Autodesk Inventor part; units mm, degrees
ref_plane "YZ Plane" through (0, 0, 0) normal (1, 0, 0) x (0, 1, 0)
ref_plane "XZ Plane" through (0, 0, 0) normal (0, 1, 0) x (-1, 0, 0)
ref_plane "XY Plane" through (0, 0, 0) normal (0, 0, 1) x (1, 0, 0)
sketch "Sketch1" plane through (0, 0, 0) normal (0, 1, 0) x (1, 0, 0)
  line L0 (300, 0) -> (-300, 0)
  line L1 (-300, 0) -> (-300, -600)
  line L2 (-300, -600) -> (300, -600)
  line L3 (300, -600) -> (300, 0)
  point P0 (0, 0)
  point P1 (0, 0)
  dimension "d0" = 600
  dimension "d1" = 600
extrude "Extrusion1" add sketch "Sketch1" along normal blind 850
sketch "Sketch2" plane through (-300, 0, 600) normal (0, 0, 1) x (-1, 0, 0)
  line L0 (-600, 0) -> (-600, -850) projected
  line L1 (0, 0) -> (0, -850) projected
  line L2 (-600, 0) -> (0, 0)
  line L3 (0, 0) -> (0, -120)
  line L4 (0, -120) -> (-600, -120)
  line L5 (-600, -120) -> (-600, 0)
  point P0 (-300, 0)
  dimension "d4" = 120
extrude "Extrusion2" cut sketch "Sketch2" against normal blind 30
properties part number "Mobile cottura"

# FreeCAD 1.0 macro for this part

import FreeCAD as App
import Part
import Sketcher
from FreeCAD import Vector


def add_polygon(sketch, points):
    """Adds a closed chain of lines whose ends are joined by coincident constraints."""
    first, n = sketch.GeometryCount, len(points)
    for a, b in zip(points, points[1:] + points[:1]):
        sketch.addGeometry(Part.LineSegment(App.Vector(*a, 0), App.Vector(*b, 0)), False)
    for i in range(n):
        sketch.addConstraint(Sketcher.Constraint("Coincident", first + i, 2, first + (i + 1) % n, 1))

doc = App.newDocument("Part")
body = doc.addObject("PartDesign::Body", "Body")

sketch1 = body.newObject("Sketcher::SketchObject", "Sketch")
sketch1.AttachmentSupport = (doc.getObject("XZ_Plane"), [""])
sketch1.MapMode = "FlatFace"
add_polygon(sketch1, [(300, 600), (300, 0), (-300, 0), (-300, 600)])
sketch1.addConstraint(Sketcher.Constraint("Vertical", 0))
sketch1.addConstraint(Sketcher.Constraint("Horizontal", 1))
sketch1.addConstraint(Sketcher.Constraint("Vertical", 2))
sketch1.addConstraint(Sketcher.Constraint("Horizontal", 3))
sketch1.addConstraint(Sketcher.Constraint("Symmetric", 0, 2, 1, 2, -1, 1))
sketch1.addConstraint(Sketcher.Constraint("Equal", 3, 0))
sketch1.addConstraint(Sketcher.Constraint("DistanceX", 1, 2, 1, 1, 600.0))
pad1 = body.newObject("PartDesign::Pad", "Pad")
pad1.Profile = sketch1
pad1.Length = 850
pad1.Reversed = True

sketch2 = body.newObject("Sketcher::SketchObject", "Sketch001")
sketch2.AttachmentSupport = (doc.getObject("XY_Plane"), [""])
sketch2.MapMode = "FlatFace"
sketch2.AttachmentOffset = App.Placement(Vector(0, 0, 600), App.Rotation())
add_polygon(sketch2, [(-300, 0), (300, 0), (300, 120), (-300, 120)])
sketch2.addConstraint(Sketcher.Constraint("Horizontal", 0))
sketch2.addConstraint(Sketcher.Constraint("Vertical", 1))
sketch2.addConstraint(Sketcher.Constraint("Horizontal", 2))
sketch2.addConstraint(Sketcher.Constraint("Vertical", 3))
sketch2.addConstraint(Sketcher.Constraint("Symmetric", 0, 2, 3, 2, -1, 1))
sketch2.addConstraint(Sketcher.Constraint("DistanceY", 1, 1, 1, 2, 120.0))
sketch2.addConstraint(Sketcher.Constraint("DistanceX", 0, 1, 0, 2, 600.0))
pocket1 = body.newObject("PartDesign::Pocket", "Pocket")
pocket1.Profile = sketch2
pocket1.Length = 30

doc.recompute()
